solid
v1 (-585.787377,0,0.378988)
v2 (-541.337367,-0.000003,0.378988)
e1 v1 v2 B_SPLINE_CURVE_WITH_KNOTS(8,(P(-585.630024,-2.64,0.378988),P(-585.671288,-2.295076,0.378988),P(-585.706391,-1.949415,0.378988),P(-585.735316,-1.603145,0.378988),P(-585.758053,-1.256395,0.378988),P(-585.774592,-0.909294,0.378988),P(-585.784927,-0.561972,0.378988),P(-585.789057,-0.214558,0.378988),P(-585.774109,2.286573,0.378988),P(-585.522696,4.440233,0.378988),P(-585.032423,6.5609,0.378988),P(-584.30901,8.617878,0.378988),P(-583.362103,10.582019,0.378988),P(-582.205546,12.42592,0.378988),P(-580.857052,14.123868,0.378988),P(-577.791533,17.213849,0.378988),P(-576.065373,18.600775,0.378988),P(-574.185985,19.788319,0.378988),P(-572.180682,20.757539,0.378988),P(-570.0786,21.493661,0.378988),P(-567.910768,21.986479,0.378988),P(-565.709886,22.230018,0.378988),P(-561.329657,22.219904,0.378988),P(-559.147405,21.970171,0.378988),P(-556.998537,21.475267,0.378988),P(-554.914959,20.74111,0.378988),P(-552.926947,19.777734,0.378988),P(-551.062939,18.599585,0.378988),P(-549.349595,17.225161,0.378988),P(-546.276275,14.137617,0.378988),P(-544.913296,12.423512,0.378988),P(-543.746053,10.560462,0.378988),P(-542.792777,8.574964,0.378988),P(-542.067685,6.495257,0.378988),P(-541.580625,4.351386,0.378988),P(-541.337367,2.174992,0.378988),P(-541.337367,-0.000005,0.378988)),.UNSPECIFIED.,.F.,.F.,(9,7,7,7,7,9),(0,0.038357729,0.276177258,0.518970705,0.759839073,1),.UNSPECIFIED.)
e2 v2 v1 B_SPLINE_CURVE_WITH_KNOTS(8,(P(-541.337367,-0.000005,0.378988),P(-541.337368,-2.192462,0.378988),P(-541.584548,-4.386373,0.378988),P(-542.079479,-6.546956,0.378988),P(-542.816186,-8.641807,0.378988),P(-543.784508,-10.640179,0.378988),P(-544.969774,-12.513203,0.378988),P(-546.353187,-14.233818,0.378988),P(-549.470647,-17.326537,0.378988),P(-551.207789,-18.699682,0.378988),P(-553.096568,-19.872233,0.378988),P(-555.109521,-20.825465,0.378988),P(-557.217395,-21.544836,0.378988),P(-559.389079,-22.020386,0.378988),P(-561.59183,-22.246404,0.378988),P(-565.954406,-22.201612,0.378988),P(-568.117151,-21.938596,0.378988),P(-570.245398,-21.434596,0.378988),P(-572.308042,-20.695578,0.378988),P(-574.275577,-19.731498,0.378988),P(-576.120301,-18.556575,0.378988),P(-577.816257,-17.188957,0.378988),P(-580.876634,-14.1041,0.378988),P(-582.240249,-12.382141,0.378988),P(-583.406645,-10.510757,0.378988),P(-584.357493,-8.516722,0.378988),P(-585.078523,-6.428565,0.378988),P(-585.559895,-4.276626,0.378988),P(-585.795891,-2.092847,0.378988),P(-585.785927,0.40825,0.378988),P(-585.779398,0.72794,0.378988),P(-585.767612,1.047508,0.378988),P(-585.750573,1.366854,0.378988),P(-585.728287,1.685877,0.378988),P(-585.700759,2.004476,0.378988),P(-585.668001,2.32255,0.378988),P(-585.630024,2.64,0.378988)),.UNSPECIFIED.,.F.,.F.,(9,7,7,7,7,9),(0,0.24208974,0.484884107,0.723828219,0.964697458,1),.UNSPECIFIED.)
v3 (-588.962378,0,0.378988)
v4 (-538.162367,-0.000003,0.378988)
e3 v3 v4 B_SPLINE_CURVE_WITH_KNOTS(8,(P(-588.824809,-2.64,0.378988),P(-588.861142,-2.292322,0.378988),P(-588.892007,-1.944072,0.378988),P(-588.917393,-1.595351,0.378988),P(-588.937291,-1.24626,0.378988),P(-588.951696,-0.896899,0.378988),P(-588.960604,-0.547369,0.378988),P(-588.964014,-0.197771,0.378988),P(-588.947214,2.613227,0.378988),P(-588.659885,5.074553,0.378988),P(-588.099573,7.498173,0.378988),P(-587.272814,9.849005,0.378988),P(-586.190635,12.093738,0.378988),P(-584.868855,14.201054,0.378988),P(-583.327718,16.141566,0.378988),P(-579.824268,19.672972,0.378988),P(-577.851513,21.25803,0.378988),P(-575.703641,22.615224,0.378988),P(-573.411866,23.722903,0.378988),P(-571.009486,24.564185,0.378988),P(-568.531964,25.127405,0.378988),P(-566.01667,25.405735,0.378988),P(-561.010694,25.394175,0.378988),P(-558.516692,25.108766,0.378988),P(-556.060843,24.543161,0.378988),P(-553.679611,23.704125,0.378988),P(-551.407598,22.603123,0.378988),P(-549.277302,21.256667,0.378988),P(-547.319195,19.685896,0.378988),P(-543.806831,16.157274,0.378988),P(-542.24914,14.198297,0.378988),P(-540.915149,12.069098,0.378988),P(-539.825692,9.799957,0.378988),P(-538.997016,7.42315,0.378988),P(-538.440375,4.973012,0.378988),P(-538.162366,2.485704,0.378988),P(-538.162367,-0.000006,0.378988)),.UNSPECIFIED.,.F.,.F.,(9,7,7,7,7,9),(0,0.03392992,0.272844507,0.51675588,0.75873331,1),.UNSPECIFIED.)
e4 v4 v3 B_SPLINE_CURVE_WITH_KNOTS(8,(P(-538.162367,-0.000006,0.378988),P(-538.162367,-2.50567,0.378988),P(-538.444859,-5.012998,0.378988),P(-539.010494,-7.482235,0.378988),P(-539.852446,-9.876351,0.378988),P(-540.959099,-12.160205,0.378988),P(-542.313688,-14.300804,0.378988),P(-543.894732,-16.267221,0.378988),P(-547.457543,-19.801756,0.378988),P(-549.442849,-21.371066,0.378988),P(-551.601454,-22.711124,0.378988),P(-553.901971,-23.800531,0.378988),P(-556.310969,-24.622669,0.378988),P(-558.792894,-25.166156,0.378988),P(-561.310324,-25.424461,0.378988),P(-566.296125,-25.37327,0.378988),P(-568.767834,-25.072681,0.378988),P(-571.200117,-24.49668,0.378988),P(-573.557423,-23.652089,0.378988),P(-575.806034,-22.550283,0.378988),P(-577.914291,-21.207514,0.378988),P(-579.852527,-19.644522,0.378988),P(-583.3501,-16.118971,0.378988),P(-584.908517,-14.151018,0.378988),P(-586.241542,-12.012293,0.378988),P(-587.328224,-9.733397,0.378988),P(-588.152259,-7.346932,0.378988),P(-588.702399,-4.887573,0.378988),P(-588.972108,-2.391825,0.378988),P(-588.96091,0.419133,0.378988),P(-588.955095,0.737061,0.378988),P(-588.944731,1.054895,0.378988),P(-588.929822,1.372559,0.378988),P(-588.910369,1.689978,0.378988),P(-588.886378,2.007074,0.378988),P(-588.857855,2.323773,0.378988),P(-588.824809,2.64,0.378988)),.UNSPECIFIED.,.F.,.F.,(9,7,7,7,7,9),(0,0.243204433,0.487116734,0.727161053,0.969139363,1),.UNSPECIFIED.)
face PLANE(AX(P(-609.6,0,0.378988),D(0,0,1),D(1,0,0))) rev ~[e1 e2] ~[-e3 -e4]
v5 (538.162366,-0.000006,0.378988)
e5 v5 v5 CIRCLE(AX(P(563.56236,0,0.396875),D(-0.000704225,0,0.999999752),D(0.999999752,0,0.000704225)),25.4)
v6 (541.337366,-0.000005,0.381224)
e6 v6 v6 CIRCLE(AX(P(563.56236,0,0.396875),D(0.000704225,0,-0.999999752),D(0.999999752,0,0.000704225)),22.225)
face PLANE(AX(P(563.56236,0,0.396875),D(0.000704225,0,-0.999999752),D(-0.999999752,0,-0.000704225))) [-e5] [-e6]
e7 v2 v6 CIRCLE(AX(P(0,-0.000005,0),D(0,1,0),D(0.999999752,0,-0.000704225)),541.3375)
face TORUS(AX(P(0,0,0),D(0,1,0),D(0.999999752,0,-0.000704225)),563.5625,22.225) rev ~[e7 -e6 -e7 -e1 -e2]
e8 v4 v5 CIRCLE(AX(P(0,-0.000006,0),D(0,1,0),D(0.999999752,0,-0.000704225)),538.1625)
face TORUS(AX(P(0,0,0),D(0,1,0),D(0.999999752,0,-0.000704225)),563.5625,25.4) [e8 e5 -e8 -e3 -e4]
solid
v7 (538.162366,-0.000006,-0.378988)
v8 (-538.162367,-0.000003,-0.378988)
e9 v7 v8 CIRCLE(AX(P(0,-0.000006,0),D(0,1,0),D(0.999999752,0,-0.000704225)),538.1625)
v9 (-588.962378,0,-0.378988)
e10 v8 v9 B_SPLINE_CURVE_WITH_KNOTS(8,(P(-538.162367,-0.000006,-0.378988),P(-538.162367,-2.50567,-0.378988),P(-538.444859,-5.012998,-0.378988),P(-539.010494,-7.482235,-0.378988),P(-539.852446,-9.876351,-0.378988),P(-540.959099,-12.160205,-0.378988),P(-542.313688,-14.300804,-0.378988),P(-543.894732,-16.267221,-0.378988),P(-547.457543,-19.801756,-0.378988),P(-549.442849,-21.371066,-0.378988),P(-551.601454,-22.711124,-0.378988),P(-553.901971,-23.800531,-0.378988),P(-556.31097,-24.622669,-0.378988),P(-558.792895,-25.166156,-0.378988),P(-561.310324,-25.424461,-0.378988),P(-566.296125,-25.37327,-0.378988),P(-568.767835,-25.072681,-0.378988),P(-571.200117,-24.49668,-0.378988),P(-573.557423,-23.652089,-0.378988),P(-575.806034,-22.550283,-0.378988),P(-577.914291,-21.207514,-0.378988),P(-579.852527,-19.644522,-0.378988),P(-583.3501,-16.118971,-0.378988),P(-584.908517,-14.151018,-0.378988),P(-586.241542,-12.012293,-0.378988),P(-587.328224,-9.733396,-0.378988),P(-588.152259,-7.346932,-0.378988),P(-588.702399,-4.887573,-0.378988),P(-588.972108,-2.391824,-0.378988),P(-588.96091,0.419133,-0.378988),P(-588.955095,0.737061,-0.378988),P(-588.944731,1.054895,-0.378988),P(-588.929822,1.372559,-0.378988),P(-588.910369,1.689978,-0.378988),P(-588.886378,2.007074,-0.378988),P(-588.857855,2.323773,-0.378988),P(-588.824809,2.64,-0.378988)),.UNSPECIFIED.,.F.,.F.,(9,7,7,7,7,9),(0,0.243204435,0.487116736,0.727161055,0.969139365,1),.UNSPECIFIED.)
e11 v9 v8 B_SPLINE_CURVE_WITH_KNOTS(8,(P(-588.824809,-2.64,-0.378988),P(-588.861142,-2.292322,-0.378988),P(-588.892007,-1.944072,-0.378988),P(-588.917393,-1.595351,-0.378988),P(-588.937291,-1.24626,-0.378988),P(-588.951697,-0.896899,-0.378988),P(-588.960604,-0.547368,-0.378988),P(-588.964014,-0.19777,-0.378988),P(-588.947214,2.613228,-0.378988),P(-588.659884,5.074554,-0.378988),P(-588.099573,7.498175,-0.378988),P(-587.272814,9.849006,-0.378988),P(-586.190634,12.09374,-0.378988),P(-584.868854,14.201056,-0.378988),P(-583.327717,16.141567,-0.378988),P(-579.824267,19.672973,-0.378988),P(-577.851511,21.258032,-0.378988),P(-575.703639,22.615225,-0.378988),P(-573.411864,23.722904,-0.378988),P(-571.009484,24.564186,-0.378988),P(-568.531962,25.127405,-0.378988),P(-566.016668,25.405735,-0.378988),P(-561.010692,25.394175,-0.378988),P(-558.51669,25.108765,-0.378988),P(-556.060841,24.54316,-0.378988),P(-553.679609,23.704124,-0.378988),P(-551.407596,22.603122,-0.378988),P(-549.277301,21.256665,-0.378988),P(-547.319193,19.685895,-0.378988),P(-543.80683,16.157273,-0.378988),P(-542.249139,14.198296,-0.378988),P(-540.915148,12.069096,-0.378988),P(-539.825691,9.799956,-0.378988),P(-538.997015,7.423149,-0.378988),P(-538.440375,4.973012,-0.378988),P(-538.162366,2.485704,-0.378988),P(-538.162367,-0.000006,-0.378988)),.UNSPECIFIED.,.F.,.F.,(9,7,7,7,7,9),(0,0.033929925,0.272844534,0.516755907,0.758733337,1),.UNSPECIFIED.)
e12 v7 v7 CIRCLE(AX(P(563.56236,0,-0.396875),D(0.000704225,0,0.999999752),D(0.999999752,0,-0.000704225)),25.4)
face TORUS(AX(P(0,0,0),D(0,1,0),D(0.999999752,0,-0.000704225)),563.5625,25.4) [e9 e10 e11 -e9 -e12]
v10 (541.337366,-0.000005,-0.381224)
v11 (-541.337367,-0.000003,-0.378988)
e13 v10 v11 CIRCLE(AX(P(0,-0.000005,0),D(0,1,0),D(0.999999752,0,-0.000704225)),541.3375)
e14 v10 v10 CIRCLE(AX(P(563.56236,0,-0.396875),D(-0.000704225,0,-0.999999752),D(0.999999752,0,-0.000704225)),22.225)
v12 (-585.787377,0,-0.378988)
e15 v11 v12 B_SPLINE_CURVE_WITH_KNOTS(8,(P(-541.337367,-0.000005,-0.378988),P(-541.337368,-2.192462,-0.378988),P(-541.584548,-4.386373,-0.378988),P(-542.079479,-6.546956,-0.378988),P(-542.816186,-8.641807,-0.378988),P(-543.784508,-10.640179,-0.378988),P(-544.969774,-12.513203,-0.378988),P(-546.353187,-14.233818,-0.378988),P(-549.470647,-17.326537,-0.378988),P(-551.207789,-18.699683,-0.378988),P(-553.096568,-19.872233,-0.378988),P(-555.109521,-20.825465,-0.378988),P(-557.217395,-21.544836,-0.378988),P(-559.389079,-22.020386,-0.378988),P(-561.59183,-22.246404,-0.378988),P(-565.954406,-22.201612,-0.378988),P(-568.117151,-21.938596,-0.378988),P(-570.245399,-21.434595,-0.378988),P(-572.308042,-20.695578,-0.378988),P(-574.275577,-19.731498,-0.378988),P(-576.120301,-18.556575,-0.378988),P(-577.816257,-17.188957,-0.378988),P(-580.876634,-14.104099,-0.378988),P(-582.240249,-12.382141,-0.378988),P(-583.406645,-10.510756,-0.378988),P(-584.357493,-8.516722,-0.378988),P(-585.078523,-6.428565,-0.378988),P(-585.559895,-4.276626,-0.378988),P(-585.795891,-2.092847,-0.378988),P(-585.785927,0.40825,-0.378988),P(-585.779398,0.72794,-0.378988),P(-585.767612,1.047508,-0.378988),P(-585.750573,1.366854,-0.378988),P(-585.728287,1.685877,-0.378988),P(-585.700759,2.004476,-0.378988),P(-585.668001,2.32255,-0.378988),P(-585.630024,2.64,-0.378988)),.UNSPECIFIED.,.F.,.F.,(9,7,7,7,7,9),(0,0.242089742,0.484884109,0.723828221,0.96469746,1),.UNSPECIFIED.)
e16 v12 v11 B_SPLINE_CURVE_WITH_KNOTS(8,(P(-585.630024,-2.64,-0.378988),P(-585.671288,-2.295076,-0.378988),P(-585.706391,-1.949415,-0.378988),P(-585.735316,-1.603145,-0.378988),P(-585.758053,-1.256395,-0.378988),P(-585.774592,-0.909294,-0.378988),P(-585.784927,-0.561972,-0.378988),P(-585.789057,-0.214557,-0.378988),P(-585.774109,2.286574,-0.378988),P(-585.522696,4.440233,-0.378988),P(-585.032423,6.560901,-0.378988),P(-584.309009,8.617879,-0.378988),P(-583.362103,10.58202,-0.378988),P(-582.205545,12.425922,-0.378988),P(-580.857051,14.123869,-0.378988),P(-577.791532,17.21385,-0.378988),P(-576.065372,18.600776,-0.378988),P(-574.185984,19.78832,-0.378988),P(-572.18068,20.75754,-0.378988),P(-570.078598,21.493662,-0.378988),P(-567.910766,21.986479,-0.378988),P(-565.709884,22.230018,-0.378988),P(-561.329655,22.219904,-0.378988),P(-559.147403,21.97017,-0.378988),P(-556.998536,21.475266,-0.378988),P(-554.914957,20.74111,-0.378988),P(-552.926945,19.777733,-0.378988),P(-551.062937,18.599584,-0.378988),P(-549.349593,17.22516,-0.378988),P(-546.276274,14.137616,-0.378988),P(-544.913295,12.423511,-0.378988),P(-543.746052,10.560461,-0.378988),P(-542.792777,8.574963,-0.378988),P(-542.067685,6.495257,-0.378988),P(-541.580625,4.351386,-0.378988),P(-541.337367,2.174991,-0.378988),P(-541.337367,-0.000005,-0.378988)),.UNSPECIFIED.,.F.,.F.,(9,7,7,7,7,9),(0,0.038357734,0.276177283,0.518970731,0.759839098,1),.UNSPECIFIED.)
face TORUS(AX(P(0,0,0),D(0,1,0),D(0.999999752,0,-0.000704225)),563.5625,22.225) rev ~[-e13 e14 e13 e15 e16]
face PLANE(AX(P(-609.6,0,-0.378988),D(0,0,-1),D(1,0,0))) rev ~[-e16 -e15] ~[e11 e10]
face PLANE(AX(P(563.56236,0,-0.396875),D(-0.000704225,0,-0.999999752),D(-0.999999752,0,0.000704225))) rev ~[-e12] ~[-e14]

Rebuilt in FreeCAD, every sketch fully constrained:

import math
import FreeCAD as App
import Part
import Sketcher
Q = App.Units.Quantity


def faces_at(feature, points):
    """Names of the faces that lie closest to the given points."""
    faces = feature.Shape.Faces
    near = lambda p: min(range(len(faces)), key=lambda i: faces[i].distToShape(Part.Vertex(*p))[0])
    return sorted({f"Face{near(p) + 1}" for p in points})

doc = App.newDocument("Part")
params = doc.addObject("Spreadsheet::Sheet", "Params")
for row, (alias, value) in enumerate([
    ("sketch1_diameter", "2 in"),
    ("sketch2_radius", "22.1875 in"),
    ("thickness_wall", "0.125 in"),
    ("sketch3_width", "4 in"),
], start=1):
    params.set(f"A{row}", alias)
    params.set(f"B{row}", "=" + value)
    params.setAlias(f"B{row}", alias)

body = doc.addObject("PartDesign::Body", "Body")
body.AllowCompound = True

# Sketch on an angled plane
sketch1 = body.newObject("Sketcher::SketchObject", "Sketch")
sketch1.Placement = App.Placement(App.Vector(563.56236, 0, -0.396875), App.Rotation(App.Vector(-0.999999752, 0, 0.000704), App.Vector(0, 1, 0), App.Vector(-0.000704, 0, -0.999999752), "ZXY"))
sketch1.addGeometry(Part.Circle(App.Vector(0, 0, 0), App.Vector(0, 0, 1), 25), False)
sketch1.addConstraint([
    Sketcher.Constraint("Coincident", 0, 3, -1, 1),
    Sketcher.Constraint("Diameter", 0, Q("2 in")),
])
sketch1.setExpression("Constraints[1]", "Params.sketch1_diameter")

# Sketch on XZ plane
sketch2 = body.newObject("Sketcher::SketchObject", "Sketch001")
sketch2.AttachmentSupport = (doc.getObject("XZ_Plane"), [""])
sketch2.MapMode = "FlatFace"
sketch2.addGeometry(Part.ArcOfCircle(Part.Circle(App.Vector(0, 0, 0), App.Vector(0, 0, 1), 563.6), math.radians(0), math.radians(360)), False)
sketch2.addConstraint([
    Sketcher.Constraint("Coincident", 0, 3, -1, 1),
    Sketcher.Constraint("Radius", 0, Q("22.1875 in")),
    Sketcher.Constraint("DistanceY", -1, 1, 0, 1, Q("0.015625 in")),
    Sketcher.Constraint("DistanceY", 0, 2, -1, 1, Q("0.015625 in")),
])
sketch2.setExpression("Constraints[1]", "Params.sketch2_radius")
doc.recompute()

additivepipe = body.newObject("PartDesign::AdditivePipe", "AdditivePipe")
additivepipe.Profile = sketch1
additivepipe.Spine = (sketch2, ["Edge1"])
doc.recompute()

thickness = body.newObject("PartDesign::Thickness", "Thickness")
thickness.Base = (additivepipe, faces_at(additivepipe, [(563.562, 0, 0.397), (563.562, 0, -0.397)]))
thickness.setExpression("Value", "Params.thickness_wall")
thickness.Reversed = True
thickness.Join = "Intersection"

# Sketch on XZ plane
sketch3 = body.newObject("Sketcher::SketchObject", "Sketch002")
sketch3.AttachmentSupport = (doc.getObject("XZ_Plane"), [""])
sketch3.MapMode = "FlatFace"
sketch3.addGeometry([
    Part.LineSegment(App.Vector(-609.6, -0.4, 0), App.Vector(-609.6, 0.4, 0)),
    Part.LineSegment(App.Vector(-609.6, 0.4, 0), App.Vector(-508, 0.4, 0)),
    Part.LineSegment(App.Vector(-508, 0.4, 0), App.Vector(-508, -0.4, 0)),
    Part.LineSegment(App.Vector(-508, -0.4, 0), App.Vector(-609.6, -0.4, 0)),
], False)
sketch3.addConstraint([
    Sketcher.Constraint("Coincident", 0, 2, 1, 1),
    Sketcher.Constraint("Coincident", 1, 2, 2, 1),
    Sketcher.Constraint("Coincident", 2, 2, 3, 1),
    Sketcher.Constraint("Coincident", 3, 2, 0, 1),
    Sketcher.Constraint("Vertical", 0),
    Sketcher.Constraint("Horizontal", 1),
    Sketcher.Constraint("Vertical", 2),
    Sketcher.Constraint("Horizontal", 3),
    Sketcher.Constraint("DistanceX", 1, 1, 1, 2, Q("4 in")),
    Sketcher.Constraint("DistanceX", 0, 2, -1, 1, Q("24 in")),
    Sketcher.Constraint("DistanceY", 0, 1, 0, 2, 0.757976),
    Sketcher.Constraint("DistanceY", -1, 1, 0, 2, 0.378988),
])
sketch3.setExpression("Constraints[8]", "Params.sketch3_width")
pocket1 = body.newObject("PartDesign::Pocket", "Pocket")
pocket1.Profile = sketch3
pocket1.Type = "ThroughAll"
pocket1.Midplane = True

doc.recompute()
